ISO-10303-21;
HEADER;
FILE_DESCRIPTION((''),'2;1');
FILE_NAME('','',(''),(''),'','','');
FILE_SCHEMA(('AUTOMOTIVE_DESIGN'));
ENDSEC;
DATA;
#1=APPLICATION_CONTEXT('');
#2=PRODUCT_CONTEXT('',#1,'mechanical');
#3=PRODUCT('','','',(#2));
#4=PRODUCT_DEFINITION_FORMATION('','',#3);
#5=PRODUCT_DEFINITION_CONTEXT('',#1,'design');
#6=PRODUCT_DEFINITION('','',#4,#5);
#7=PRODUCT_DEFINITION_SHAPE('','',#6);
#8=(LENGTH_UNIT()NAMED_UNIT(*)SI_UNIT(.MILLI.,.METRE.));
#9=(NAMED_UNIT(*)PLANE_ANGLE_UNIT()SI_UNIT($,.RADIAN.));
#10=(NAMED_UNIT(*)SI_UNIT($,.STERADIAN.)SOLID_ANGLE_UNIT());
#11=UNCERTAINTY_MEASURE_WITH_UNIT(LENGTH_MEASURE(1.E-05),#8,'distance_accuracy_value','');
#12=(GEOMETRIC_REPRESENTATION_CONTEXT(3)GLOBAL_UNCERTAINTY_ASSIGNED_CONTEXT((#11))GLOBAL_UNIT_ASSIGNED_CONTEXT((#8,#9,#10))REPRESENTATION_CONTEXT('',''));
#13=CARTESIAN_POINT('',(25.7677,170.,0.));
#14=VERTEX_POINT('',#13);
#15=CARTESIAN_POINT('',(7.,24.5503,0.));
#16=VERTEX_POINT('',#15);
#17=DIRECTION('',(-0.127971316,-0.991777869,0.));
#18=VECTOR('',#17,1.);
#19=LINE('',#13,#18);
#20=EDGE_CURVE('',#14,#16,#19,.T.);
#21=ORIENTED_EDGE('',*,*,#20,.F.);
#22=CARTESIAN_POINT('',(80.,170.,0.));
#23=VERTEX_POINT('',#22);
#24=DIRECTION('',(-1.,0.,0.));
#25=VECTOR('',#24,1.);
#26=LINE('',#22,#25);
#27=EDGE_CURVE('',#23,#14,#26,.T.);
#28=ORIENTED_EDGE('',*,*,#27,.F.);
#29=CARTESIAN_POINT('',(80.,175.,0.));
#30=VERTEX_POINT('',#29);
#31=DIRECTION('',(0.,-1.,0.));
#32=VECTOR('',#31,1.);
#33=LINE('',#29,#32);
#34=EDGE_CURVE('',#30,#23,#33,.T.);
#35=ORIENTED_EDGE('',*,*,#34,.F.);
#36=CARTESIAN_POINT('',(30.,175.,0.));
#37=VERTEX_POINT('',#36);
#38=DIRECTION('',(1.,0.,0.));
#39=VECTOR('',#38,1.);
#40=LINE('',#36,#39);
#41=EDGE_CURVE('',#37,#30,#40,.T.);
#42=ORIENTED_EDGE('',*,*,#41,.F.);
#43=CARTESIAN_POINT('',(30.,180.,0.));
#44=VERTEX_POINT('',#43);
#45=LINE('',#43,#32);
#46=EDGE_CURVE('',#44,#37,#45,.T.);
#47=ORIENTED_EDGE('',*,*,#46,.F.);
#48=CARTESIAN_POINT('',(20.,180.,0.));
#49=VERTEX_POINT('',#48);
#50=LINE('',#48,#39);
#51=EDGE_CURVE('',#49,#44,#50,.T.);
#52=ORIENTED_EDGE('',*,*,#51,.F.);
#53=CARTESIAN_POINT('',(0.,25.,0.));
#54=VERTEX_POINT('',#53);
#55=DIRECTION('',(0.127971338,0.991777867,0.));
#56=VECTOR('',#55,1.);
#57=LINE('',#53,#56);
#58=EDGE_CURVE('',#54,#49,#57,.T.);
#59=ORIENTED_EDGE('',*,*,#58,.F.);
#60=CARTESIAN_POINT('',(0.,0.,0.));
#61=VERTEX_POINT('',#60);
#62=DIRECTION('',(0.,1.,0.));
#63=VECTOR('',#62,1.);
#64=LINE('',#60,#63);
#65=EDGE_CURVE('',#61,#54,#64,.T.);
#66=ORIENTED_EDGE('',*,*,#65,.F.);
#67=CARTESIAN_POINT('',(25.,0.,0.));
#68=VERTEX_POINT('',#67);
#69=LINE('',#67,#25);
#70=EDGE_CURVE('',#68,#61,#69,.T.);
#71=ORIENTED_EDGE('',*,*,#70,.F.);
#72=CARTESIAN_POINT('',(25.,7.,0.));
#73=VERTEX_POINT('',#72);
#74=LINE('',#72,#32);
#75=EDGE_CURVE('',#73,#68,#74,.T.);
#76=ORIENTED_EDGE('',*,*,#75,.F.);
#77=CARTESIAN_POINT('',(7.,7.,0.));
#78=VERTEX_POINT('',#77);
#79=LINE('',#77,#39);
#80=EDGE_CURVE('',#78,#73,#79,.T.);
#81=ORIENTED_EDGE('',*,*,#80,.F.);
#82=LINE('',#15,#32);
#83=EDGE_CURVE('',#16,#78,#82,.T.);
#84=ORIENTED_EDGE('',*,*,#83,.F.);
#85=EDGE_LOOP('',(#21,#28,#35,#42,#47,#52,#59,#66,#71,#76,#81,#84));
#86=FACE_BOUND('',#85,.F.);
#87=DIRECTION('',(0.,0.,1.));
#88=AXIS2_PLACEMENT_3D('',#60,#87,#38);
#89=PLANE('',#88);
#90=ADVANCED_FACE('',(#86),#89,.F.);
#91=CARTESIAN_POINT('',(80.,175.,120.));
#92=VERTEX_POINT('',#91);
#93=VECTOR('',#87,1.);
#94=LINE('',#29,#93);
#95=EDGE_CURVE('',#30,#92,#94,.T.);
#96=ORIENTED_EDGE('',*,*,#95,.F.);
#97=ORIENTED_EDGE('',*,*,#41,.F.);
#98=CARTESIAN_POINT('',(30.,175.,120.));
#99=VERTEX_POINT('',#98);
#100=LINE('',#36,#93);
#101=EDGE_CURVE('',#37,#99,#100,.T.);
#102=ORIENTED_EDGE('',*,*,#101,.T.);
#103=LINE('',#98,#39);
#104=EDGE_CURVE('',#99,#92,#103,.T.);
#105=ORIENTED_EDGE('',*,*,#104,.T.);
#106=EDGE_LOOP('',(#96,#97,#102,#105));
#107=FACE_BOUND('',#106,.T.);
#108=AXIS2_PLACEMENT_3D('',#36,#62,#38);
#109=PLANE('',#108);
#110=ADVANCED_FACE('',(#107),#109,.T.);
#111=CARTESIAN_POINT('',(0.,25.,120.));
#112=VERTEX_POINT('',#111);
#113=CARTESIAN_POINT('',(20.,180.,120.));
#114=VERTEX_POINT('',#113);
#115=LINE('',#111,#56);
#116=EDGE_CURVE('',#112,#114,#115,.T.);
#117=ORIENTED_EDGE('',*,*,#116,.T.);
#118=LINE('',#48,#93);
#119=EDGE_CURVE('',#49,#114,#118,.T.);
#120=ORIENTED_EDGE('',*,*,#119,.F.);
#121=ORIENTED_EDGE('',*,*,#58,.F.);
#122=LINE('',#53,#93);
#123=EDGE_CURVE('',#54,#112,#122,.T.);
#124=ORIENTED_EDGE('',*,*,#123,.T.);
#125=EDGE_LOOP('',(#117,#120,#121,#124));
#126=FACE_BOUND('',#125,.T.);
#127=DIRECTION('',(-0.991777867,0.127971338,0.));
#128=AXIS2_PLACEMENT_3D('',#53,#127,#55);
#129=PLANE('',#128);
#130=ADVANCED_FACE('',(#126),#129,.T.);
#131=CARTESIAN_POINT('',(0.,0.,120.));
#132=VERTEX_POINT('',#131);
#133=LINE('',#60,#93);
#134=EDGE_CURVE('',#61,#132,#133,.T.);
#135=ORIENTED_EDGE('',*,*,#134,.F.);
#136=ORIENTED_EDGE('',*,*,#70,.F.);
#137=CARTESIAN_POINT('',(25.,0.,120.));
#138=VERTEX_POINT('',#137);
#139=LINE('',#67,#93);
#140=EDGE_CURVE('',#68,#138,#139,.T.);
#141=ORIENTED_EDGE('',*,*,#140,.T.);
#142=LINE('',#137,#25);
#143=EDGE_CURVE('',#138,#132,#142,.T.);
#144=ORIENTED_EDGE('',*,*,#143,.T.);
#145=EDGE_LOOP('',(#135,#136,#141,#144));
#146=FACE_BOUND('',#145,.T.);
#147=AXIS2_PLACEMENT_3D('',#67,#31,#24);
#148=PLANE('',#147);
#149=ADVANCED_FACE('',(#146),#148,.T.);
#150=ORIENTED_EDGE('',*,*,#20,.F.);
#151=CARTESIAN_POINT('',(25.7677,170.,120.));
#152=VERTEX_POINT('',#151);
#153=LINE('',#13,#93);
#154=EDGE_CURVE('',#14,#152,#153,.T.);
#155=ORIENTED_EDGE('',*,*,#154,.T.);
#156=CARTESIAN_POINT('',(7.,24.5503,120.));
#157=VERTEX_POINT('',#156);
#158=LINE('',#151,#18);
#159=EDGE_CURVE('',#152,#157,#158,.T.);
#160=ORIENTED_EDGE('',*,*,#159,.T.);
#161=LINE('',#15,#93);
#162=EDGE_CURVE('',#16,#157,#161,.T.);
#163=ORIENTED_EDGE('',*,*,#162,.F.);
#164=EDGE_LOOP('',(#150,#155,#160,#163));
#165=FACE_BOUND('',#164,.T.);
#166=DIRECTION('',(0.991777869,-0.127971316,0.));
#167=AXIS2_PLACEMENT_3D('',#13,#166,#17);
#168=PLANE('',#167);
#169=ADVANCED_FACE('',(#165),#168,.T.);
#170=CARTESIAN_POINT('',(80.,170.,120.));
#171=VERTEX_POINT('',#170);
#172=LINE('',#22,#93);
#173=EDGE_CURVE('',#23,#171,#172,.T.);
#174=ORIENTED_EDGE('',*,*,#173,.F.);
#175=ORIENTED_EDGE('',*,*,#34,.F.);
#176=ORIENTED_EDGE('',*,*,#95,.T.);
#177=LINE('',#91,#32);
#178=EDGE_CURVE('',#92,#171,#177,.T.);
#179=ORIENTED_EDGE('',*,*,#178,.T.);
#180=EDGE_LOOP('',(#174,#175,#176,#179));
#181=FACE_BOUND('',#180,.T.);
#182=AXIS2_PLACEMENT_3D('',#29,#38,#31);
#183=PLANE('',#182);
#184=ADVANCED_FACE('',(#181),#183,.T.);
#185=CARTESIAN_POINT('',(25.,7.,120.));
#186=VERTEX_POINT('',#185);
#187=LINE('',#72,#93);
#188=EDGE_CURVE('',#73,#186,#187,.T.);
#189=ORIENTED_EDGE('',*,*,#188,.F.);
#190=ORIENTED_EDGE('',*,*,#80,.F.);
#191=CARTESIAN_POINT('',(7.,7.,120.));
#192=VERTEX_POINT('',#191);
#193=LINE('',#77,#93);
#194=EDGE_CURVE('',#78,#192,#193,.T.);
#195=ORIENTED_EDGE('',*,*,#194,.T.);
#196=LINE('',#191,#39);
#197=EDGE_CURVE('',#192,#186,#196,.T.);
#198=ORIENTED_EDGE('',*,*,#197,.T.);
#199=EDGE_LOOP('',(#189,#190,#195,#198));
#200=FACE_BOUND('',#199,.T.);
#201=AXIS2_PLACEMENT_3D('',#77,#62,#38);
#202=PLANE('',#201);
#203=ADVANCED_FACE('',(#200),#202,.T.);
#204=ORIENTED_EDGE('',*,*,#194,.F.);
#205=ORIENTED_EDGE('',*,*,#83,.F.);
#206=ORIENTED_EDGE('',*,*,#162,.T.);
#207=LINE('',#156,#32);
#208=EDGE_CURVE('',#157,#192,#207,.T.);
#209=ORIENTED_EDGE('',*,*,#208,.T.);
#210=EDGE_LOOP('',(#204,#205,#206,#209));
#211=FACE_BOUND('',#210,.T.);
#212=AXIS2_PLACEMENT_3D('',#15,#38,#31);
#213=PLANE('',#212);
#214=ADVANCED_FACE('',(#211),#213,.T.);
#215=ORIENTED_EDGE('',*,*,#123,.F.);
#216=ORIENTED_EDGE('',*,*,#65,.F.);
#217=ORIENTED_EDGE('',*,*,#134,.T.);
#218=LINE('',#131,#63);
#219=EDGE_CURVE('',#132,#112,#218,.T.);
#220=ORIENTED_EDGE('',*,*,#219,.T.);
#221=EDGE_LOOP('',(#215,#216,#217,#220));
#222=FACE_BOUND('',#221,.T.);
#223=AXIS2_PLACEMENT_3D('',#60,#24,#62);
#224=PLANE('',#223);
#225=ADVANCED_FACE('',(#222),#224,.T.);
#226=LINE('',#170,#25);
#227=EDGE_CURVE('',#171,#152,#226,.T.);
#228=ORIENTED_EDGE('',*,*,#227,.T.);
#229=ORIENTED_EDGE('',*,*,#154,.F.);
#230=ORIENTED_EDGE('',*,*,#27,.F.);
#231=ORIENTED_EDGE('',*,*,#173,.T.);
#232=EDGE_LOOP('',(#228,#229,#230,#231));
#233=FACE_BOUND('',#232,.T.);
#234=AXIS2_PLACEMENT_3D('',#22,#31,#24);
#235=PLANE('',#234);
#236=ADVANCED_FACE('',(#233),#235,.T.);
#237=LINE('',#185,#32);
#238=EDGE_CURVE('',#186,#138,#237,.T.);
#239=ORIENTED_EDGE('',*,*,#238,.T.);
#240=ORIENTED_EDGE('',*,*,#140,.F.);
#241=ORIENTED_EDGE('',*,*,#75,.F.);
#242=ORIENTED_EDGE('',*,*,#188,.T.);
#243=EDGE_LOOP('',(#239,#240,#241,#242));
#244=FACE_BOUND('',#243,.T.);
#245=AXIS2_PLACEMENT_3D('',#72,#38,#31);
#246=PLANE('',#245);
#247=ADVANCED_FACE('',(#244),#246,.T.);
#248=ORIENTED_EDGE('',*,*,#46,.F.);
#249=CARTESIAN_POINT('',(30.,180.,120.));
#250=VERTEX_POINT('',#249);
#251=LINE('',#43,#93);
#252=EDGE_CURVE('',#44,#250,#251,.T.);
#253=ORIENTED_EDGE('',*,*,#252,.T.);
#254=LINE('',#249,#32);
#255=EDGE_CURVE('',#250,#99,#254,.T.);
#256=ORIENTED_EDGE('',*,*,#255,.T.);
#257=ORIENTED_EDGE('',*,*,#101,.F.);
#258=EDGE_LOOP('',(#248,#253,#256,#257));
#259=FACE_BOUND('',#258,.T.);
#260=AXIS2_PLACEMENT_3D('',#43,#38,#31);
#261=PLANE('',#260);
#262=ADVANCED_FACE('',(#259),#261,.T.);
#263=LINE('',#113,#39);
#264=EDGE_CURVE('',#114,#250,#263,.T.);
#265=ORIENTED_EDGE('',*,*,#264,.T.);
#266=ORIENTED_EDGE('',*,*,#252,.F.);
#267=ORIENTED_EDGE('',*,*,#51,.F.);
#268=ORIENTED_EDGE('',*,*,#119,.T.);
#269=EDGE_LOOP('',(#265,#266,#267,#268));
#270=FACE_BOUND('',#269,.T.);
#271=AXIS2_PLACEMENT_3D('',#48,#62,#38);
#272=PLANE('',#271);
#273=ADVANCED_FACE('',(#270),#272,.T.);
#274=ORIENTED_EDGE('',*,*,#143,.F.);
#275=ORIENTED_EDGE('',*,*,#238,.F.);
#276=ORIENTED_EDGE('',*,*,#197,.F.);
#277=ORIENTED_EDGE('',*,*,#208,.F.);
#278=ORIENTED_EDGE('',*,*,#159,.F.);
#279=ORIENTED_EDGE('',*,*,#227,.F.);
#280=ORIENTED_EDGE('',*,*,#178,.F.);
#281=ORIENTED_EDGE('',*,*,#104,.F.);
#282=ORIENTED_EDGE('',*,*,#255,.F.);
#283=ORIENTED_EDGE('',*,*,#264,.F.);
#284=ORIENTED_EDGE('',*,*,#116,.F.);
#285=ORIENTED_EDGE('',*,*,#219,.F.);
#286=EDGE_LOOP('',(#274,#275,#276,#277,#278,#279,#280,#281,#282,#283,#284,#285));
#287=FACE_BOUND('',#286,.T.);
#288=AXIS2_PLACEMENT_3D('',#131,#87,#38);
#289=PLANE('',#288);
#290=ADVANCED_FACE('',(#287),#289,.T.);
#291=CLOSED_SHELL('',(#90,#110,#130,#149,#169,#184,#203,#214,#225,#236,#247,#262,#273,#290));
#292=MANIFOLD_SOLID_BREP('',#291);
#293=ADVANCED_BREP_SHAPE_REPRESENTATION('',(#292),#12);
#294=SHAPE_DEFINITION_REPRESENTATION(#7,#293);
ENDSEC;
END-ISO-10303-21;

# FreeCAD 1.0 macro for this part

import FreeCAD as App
import Part
import Sketcher

V = App.Vector

doc = App.newDocument("Part")
body = doc.addObject("PartDesign::Body", "Body")

sketch1 = body.newObject("Sketcher::SketchObject", "Sketch")
sketch1.AttachmentSupport = (doc.getObject("XY_Plane"), [""])
sketch1.MapMode = "FlatFace"
sketch1.addGeometry(Part.LineSegment(V(0, 0, 0), V(25, 0, 0)), False)
sketch1.addGeometry(Part.LineSegment(V(25, 0, 0), V(25, 7, 0)), False)
sketch1.addGeometry(Part.LineSegment(V(25, 7, 0), V(7, 7, 0)), False)
sketch1.addGeometry(Part.LineSegment(V(7, 7, 0), V(7, 25, 0)), False)
sketch1.addGeometry(Part.LineSegment(V(7, 25, 0), V(26, 170, 0)), False)
sketch1.addGeometry(Part.LineSegment(V(26, 170, 0), V(80, 170, 0)), False)
sketch1.addGeometry(Part.LineSegment(V(80, 170, 0), V(80, 175, 0)), False)
sketch1.addGeometry(Part.LineSegment(V(80, 175, 0), V(30, 175, 0)), False)
sketch1.addGeometry(Part.LineSegment(V(30, 175, 0), V(30, 180, 0)), False)
sketch1.addGeometry(Part.LineSegment(V(30, 180, 0), V(20, 180, 0)), False)
sketch1.addGeometry(Part.LineSegment(V(20, 180, 0), V(0, 25, 0)), False)
sketch1.addGeometry(Part.LineSegment(V(0, 25, 0), V(0, 0, 0)), False)
sketch1.addConstraint(Sketcher.Constraint("Coincident", 0, 2, 1, 1))
sketch1.addConstraint(Sketcher.Constraint("Coincident", 1, 2, 2, 1))
sketch1.addConstraint(Sketcher.Constraint("Coincident", 2, 2, 3, 1))
sketch1.addConstraint(Sketcher.Constraint("Coincident", 3, 2, 4, 1))
sketch1.addConstraint(Sketcher.Constraint("Coincident", 4, 2, 5, 1))
sketch1.addConstraint(Sketcher.Constraint("Coincident", 5, 2, 6, 1))
sketch1.addConstraint(Sketcher.Constraint("Coincident", 6, 2, 7, 1))
sketch1.addConstraint(Sketcher.Constraint("Coincident", 7, 2, 8, 1))
sketch1.addConstraint(Sketcher.Constraint("Coincident", 8, 2, 9, 1))
sketch1.addConstraint(Sketcher.Constraint("Coincident", 9, 2, 10, 1))
sketch1.addConstraint(Sketcher.Constraint("Coincident", 10, 2, 11, 1))
sketch1.addConstraint(Sketcher.Constraint("Coincident", 11, 2, 0, 1))
sketch1.addConstraint(Sketcher.Constraint("Horizontal", 0))
sketch1.addConstraint(Sketcher.Constraint("Vertical", 1))
sketch1.addConstraint(Sketcher.Constraint("Horizontal", 2))
sketch1.addConstraint(Sketcher.Constraint("Vertical", 3))
sketch1.addConstraint(Sketcher.Constraint("Horizontal", 5))
sketch1.addConstraint(Sketcher.Constraint("Vertical", 6))
sketch1.addConstraint(Sketcher.Constraint("Horizontal", 7))
sketch1.addConstraint(Sketcher.Constraint("Vertical", 8))
sketch1.addConstraint(Sketcher.Constraint("Horizontal", 9))
sketch1.addConstraint(Sketcher.Constraint("Vertical", 11))
sketch1.addConstraint(Sketcher.Constraint("Coincident", 11, 2, -1, 1))
sketch1.addConstraint(Sketcher.Constraint("Parallel", 4, 10))
sketch1.addConstraint(Sketcher.Constraint("Equal", 6, 8))
sketch1.addConstraint(Sketcher.Constraint("Equal", 0, 11))
sketch1.addConstraint(Sketcher.Constraint("DistanceX", 0, 1, 0, 2, 25.0))
sketch1.addConstraint(Sketcher.Constraint("DistanceX", 7, 2, 7, 1, 50.0))
sketch1.addConstraint(Sketcher.Constraint("DistanceX", 9, 2, 9, 1, 10.0))
sketch1.addConstraint(Sketcher.Constraint("DistanceY", 1, 1, 1, 2, 7.0))
sketch1.addConstraint(Sketcher.Constraint("DistanceY", 6, 1, 6, 2, 5.0))
sketch1.addConstraint(Sketcher.Constraint("DistanceX", -1, 1, 2, 2, 7.0))
sketch1.addConstraint(Sketcher.Constraint("DistanceY", -1, 1, 8, 2, 180.0))
sketch1.addConstraint(Sketcher.Constraint("DistanceX", -1, 1, 9, 2, 20.0))
sketch1.addConstraint(Sketcher.Constraint("DistanceX", 5, 1, 5, 2, 54.2323))
pad1 = body.newObject("PartDesign::Pad", "Pad")
pad1.Profile = sketch1
pad1.Length = 120

doc.recompute()
